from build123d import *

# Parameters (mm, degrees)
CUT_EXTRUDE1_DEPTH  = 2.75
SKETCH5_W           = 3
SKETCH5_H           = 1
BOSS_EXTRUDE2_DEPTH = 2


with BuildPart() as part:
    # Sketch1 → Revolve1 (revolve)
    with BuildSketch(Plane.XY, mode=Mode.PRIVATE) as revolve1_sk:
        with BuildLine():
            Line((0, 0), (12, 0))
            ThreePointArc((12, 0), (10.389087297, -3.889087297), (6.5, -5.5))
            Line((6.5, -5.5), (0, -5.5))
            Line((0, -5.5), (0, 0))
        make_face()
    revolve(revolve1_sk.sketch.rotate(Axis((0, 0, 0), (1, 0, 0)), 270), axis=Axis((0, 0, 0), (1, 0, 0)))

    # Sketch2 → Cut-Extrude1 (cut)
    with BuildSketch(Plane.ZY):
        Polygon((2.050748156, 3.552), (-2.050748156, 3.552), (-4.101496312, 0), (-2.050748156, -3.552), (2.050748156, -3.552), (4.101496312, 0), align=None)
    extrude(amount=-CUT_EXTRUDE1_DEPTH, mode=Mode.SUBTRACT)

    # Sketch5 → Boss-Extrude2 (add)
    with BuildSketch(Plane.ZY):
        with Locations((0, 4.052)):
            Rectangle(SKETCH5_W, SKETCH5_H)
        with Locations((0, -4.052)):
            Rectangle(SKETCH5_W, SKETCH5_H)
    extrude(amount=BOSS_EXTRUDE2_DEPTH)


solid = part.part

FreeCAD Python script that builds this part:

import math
import FreeCAD as App
import Part
import Sketcher
from FreeCAD import Vector
Q = App.Units.Quantity

doc = App.newDocument("Part")
body = doc.addObject("PartDesign::Body", "Body")

# Sketch on XY plane
sketch1 = body.newObject("Sketcher::SketchObject", "Sketch")
sketch1.AttachmentSupport = (doc.getObject("XY_Plane"), [""])
sketch1.MapMode = "FlatFace"
sketch1.addGeometry([
    Part.LineSegment(Vector(12, 0, 0), Vector(0, 0, 0)),
    Part.LineSegment(Vector(0, 0, 0), Vector(0, -5.5, 0)),
    Part.LineSegment(Vector(0, -5.5, 0), Vector(6.5, -5.5, 0)),
    Part.ArcOfCircle(Part.Circle(Vector(6.5, 0, 0), Vector(0, 0, 1), 5.5), math.radians(-90), math.radians(0)),
], False)
sketch1.addConstraint([
    Sketcher.Constraint("Coincident", 0, 2, 1, 1),
    Sketcher.Constraint("Coincident", 1, 2, 2, 1),
    Sketcher.Constraint("Tangent", 2, 2, 3, 1),
    Sketcher.Constraint("Coincident", 3, 2, 0, 1),
    Sketcher.Constraint("Horizontal", 0),
    Sketcher.Constraint("Vertical", 1),
    Sketcher.Constraint("Horizontal", 2),
    Sketcher.Constraint("Coincident", 0, 2, -1, 1),
    Sketcher.Constraint("PointOnObject", 3, 3, -1),
    Sketcher.Constraint("Radius", 3, Q("5.5 mm")),
    Sketcher.Constraint("DistanceX", 0, 2, 0, 1, Q("12 mm")),
])
revolution = body.newObject("PartDesign::Revolution", "Revolution")
revolution.Profile = sketch1
revolution.ReferenceAxis = (sketch1, ["H_Axis"])
revolution.Angle = 360

# Sketch on YZ plane
sketch2 = body.newObject("Sketcher::SketchObject", "Sketch001")
sketch2.AttachmentSupport = (doc.getObject("YZ_Plane"), [""])
sketch2.MapMode = "FlatFace"
sketch2.addGeometry([
    Part.LineSegment(Vector(3.552, 2.050748, 0), Vector(3.552, -2.050748, 0)),  # 0
    Part.LineSegment(Vector(3.552, -2.050748, 0), Vector(0, -4.101496, 0)),  # 1
    Part.LineSegment(Vector(0, -4.101496, 0), Vector(-3.552, -2.050748, 0)),  # 2
    Part.LineSegment(Vector(-3.552, -2.050748, 0), Vector(-3.552, 2.050748, 0)),  # 3
    Part.LineSegment(Vector(-3.552, 2.050748, 0), Vector(0, 4.101496, 0)),  # 4
    Part.LineSegment(Vector(0, 4.101496, 0), Vector(3.552, 2.050748, 0)),  # 5
], False)
sketch2.addConstraint([
    Sketcher.Constraint("Coincident", 0, 2, 1, 1),
    Sketcher.Constraint("Coincident", 1, 2, 2, 1),
    Sketcher.Constraint("Coincident", 2, 2, 3, 1),
    Sketcher.Constraint("Coincident", 3, 2, 4, 1),
    Sketcher.Constraint("Coincident", 4, 2, 5, 1),
    Sketcher.Constraint("Coincident", 5, 2, 0, 1),
    Sketcher.Constraint("Vertical", 0),
    Sketcher.Constraint("Vertical", 3),
    Sketcher.Constraint("Symmetric", 0, 2, 3, 2, -1, 1),
    Sketcher.Constraint("Symmetric", 1, 2, 4, 2, -1, 1),
    Sketcher.Constraint("PointOnObject", 1, 2, -2),
    Sketcher.Constraint("Parallel", 2, 5),
    Sketcher.Constraint("Horizontal", 0, 2, 2, 2),
    Sketcher.Constraint("Angle", 1, Q("-150 deg")),
    Sketcher.Constraint("DistanceX", -1, 1, 0, 2, Q("3.552 mm")),
    Sketcher.Constraint("DistanceY", 0, 2, 0, 1, Q("4.101496 mm")),
])
pocket1 = body.newObject("PartDesign::Pocket", "Pocket")
pocket1.Profile = sketch2
pocket1.Length = 2.75
pocket1.Reversed = True

# Sketch on YZ plane
sketch3 = body.newObject("Sketcher::SketchObject", "Sketch002")
sketch3.AttachmentSupport = (doc.getObject("YZ_Plane"), [""])
sketch3.MapMode = "FlatFace"
sketch3.addGeometry([
    Part.LineSegment(Vector(4.552, -1.5, 0), Vector(3.552, -1.5, 0)),  # 0
    Part.LineSegment(Vector(3.552, -1.5, 0), Vector(3.552, 1.5, 0)),  # 1
    Part.LineSegment(Vector(3.552, 1.5, 0), Vector(4.552, 1.5, 0)),  # 2
    Part.LineSegment(Vector(4.552, 1.5, 0), Vector(4.552, -1.5, 0)),  # 3
    Part.LineSegment(Vector(-3.552, -1.5, 0), Vector(-4.552, -1.5, 0)),  # 4
    Part.LineSegment(Vector(-4.552, -1.5, 0), Vector(-4.552, 1.5, 0)),  # 5
    Part.LineSegment(Vector(-4.552, 1.5, 0), Vector(-3.552, 1.5, 0)),  # 6
    Part.LineSegment(Vector(-3.552, 1.5, 0), Vector(-3.552, -1.5, 0)),  # 7
], False)
sketch3.addConstraint([
    Sketcher.Constraint("Coincident", 0, 2, 1, 1),
    Sketcher.Constraint("Coincident", 1, 2, 2, 1),
    Sketcher.Constraint("Coincident", 2, 2, 3, 1),
    Sketcher.Constraint("Coincident", 3, 2, 0, 1),
    Sketcher.Constraint("Coincident", 4, 2, 5, 1),
    Sketcher.Constraint("Coincident", 5, 2, 6, 1),
    Sketcher.Constraint("Coincident", 6, 2, 7, 1),
    Sketcher.Constraint("Coincident", 7, 2, 4, 1),
    Sketcher.Constraint("Horizontal", 0),
    Sketcher.Constraint("Vertical", 1),
    Sketcher.Constraint("Horizontal", 2),
    Sketcher.Constraint("Vertical", 3),
    Sketcher.Constraint("Horizontal", 4),
    Sketcher.Constraint("Vertical", 5),
    Sketcher.Constraint("Horizontal", 6),
    Sketcher.Constraint("Vertical", 7),
    Sketcher.Constraint("Symmetric", 2, 2, 4, 2, -1, 1),
    Sketcher.Constraint("Symmetric", 0, 2, 6, 2, -1, 1),
    Sketcher.Constraint("Horizontal", 3, 2, 4, 2),
    Sketcher.Constraint("DistanceX", 0, 2, 0, 1, Q("1 mm")),
    Sketcher.Constraint("DistanceY", 1, 1, 1, 2, Q("3 mm")),
    Sketcher.Constraint("DistanceX", -1, 1, 0, 2, Q("3.552 mm")),
])
pad1 = body.newObject("PartDesign::Pad", "Pad")
pad1.Profile = sketch3
pad1.Length = 2
pad1.Reversed = True

doc.recompute()
